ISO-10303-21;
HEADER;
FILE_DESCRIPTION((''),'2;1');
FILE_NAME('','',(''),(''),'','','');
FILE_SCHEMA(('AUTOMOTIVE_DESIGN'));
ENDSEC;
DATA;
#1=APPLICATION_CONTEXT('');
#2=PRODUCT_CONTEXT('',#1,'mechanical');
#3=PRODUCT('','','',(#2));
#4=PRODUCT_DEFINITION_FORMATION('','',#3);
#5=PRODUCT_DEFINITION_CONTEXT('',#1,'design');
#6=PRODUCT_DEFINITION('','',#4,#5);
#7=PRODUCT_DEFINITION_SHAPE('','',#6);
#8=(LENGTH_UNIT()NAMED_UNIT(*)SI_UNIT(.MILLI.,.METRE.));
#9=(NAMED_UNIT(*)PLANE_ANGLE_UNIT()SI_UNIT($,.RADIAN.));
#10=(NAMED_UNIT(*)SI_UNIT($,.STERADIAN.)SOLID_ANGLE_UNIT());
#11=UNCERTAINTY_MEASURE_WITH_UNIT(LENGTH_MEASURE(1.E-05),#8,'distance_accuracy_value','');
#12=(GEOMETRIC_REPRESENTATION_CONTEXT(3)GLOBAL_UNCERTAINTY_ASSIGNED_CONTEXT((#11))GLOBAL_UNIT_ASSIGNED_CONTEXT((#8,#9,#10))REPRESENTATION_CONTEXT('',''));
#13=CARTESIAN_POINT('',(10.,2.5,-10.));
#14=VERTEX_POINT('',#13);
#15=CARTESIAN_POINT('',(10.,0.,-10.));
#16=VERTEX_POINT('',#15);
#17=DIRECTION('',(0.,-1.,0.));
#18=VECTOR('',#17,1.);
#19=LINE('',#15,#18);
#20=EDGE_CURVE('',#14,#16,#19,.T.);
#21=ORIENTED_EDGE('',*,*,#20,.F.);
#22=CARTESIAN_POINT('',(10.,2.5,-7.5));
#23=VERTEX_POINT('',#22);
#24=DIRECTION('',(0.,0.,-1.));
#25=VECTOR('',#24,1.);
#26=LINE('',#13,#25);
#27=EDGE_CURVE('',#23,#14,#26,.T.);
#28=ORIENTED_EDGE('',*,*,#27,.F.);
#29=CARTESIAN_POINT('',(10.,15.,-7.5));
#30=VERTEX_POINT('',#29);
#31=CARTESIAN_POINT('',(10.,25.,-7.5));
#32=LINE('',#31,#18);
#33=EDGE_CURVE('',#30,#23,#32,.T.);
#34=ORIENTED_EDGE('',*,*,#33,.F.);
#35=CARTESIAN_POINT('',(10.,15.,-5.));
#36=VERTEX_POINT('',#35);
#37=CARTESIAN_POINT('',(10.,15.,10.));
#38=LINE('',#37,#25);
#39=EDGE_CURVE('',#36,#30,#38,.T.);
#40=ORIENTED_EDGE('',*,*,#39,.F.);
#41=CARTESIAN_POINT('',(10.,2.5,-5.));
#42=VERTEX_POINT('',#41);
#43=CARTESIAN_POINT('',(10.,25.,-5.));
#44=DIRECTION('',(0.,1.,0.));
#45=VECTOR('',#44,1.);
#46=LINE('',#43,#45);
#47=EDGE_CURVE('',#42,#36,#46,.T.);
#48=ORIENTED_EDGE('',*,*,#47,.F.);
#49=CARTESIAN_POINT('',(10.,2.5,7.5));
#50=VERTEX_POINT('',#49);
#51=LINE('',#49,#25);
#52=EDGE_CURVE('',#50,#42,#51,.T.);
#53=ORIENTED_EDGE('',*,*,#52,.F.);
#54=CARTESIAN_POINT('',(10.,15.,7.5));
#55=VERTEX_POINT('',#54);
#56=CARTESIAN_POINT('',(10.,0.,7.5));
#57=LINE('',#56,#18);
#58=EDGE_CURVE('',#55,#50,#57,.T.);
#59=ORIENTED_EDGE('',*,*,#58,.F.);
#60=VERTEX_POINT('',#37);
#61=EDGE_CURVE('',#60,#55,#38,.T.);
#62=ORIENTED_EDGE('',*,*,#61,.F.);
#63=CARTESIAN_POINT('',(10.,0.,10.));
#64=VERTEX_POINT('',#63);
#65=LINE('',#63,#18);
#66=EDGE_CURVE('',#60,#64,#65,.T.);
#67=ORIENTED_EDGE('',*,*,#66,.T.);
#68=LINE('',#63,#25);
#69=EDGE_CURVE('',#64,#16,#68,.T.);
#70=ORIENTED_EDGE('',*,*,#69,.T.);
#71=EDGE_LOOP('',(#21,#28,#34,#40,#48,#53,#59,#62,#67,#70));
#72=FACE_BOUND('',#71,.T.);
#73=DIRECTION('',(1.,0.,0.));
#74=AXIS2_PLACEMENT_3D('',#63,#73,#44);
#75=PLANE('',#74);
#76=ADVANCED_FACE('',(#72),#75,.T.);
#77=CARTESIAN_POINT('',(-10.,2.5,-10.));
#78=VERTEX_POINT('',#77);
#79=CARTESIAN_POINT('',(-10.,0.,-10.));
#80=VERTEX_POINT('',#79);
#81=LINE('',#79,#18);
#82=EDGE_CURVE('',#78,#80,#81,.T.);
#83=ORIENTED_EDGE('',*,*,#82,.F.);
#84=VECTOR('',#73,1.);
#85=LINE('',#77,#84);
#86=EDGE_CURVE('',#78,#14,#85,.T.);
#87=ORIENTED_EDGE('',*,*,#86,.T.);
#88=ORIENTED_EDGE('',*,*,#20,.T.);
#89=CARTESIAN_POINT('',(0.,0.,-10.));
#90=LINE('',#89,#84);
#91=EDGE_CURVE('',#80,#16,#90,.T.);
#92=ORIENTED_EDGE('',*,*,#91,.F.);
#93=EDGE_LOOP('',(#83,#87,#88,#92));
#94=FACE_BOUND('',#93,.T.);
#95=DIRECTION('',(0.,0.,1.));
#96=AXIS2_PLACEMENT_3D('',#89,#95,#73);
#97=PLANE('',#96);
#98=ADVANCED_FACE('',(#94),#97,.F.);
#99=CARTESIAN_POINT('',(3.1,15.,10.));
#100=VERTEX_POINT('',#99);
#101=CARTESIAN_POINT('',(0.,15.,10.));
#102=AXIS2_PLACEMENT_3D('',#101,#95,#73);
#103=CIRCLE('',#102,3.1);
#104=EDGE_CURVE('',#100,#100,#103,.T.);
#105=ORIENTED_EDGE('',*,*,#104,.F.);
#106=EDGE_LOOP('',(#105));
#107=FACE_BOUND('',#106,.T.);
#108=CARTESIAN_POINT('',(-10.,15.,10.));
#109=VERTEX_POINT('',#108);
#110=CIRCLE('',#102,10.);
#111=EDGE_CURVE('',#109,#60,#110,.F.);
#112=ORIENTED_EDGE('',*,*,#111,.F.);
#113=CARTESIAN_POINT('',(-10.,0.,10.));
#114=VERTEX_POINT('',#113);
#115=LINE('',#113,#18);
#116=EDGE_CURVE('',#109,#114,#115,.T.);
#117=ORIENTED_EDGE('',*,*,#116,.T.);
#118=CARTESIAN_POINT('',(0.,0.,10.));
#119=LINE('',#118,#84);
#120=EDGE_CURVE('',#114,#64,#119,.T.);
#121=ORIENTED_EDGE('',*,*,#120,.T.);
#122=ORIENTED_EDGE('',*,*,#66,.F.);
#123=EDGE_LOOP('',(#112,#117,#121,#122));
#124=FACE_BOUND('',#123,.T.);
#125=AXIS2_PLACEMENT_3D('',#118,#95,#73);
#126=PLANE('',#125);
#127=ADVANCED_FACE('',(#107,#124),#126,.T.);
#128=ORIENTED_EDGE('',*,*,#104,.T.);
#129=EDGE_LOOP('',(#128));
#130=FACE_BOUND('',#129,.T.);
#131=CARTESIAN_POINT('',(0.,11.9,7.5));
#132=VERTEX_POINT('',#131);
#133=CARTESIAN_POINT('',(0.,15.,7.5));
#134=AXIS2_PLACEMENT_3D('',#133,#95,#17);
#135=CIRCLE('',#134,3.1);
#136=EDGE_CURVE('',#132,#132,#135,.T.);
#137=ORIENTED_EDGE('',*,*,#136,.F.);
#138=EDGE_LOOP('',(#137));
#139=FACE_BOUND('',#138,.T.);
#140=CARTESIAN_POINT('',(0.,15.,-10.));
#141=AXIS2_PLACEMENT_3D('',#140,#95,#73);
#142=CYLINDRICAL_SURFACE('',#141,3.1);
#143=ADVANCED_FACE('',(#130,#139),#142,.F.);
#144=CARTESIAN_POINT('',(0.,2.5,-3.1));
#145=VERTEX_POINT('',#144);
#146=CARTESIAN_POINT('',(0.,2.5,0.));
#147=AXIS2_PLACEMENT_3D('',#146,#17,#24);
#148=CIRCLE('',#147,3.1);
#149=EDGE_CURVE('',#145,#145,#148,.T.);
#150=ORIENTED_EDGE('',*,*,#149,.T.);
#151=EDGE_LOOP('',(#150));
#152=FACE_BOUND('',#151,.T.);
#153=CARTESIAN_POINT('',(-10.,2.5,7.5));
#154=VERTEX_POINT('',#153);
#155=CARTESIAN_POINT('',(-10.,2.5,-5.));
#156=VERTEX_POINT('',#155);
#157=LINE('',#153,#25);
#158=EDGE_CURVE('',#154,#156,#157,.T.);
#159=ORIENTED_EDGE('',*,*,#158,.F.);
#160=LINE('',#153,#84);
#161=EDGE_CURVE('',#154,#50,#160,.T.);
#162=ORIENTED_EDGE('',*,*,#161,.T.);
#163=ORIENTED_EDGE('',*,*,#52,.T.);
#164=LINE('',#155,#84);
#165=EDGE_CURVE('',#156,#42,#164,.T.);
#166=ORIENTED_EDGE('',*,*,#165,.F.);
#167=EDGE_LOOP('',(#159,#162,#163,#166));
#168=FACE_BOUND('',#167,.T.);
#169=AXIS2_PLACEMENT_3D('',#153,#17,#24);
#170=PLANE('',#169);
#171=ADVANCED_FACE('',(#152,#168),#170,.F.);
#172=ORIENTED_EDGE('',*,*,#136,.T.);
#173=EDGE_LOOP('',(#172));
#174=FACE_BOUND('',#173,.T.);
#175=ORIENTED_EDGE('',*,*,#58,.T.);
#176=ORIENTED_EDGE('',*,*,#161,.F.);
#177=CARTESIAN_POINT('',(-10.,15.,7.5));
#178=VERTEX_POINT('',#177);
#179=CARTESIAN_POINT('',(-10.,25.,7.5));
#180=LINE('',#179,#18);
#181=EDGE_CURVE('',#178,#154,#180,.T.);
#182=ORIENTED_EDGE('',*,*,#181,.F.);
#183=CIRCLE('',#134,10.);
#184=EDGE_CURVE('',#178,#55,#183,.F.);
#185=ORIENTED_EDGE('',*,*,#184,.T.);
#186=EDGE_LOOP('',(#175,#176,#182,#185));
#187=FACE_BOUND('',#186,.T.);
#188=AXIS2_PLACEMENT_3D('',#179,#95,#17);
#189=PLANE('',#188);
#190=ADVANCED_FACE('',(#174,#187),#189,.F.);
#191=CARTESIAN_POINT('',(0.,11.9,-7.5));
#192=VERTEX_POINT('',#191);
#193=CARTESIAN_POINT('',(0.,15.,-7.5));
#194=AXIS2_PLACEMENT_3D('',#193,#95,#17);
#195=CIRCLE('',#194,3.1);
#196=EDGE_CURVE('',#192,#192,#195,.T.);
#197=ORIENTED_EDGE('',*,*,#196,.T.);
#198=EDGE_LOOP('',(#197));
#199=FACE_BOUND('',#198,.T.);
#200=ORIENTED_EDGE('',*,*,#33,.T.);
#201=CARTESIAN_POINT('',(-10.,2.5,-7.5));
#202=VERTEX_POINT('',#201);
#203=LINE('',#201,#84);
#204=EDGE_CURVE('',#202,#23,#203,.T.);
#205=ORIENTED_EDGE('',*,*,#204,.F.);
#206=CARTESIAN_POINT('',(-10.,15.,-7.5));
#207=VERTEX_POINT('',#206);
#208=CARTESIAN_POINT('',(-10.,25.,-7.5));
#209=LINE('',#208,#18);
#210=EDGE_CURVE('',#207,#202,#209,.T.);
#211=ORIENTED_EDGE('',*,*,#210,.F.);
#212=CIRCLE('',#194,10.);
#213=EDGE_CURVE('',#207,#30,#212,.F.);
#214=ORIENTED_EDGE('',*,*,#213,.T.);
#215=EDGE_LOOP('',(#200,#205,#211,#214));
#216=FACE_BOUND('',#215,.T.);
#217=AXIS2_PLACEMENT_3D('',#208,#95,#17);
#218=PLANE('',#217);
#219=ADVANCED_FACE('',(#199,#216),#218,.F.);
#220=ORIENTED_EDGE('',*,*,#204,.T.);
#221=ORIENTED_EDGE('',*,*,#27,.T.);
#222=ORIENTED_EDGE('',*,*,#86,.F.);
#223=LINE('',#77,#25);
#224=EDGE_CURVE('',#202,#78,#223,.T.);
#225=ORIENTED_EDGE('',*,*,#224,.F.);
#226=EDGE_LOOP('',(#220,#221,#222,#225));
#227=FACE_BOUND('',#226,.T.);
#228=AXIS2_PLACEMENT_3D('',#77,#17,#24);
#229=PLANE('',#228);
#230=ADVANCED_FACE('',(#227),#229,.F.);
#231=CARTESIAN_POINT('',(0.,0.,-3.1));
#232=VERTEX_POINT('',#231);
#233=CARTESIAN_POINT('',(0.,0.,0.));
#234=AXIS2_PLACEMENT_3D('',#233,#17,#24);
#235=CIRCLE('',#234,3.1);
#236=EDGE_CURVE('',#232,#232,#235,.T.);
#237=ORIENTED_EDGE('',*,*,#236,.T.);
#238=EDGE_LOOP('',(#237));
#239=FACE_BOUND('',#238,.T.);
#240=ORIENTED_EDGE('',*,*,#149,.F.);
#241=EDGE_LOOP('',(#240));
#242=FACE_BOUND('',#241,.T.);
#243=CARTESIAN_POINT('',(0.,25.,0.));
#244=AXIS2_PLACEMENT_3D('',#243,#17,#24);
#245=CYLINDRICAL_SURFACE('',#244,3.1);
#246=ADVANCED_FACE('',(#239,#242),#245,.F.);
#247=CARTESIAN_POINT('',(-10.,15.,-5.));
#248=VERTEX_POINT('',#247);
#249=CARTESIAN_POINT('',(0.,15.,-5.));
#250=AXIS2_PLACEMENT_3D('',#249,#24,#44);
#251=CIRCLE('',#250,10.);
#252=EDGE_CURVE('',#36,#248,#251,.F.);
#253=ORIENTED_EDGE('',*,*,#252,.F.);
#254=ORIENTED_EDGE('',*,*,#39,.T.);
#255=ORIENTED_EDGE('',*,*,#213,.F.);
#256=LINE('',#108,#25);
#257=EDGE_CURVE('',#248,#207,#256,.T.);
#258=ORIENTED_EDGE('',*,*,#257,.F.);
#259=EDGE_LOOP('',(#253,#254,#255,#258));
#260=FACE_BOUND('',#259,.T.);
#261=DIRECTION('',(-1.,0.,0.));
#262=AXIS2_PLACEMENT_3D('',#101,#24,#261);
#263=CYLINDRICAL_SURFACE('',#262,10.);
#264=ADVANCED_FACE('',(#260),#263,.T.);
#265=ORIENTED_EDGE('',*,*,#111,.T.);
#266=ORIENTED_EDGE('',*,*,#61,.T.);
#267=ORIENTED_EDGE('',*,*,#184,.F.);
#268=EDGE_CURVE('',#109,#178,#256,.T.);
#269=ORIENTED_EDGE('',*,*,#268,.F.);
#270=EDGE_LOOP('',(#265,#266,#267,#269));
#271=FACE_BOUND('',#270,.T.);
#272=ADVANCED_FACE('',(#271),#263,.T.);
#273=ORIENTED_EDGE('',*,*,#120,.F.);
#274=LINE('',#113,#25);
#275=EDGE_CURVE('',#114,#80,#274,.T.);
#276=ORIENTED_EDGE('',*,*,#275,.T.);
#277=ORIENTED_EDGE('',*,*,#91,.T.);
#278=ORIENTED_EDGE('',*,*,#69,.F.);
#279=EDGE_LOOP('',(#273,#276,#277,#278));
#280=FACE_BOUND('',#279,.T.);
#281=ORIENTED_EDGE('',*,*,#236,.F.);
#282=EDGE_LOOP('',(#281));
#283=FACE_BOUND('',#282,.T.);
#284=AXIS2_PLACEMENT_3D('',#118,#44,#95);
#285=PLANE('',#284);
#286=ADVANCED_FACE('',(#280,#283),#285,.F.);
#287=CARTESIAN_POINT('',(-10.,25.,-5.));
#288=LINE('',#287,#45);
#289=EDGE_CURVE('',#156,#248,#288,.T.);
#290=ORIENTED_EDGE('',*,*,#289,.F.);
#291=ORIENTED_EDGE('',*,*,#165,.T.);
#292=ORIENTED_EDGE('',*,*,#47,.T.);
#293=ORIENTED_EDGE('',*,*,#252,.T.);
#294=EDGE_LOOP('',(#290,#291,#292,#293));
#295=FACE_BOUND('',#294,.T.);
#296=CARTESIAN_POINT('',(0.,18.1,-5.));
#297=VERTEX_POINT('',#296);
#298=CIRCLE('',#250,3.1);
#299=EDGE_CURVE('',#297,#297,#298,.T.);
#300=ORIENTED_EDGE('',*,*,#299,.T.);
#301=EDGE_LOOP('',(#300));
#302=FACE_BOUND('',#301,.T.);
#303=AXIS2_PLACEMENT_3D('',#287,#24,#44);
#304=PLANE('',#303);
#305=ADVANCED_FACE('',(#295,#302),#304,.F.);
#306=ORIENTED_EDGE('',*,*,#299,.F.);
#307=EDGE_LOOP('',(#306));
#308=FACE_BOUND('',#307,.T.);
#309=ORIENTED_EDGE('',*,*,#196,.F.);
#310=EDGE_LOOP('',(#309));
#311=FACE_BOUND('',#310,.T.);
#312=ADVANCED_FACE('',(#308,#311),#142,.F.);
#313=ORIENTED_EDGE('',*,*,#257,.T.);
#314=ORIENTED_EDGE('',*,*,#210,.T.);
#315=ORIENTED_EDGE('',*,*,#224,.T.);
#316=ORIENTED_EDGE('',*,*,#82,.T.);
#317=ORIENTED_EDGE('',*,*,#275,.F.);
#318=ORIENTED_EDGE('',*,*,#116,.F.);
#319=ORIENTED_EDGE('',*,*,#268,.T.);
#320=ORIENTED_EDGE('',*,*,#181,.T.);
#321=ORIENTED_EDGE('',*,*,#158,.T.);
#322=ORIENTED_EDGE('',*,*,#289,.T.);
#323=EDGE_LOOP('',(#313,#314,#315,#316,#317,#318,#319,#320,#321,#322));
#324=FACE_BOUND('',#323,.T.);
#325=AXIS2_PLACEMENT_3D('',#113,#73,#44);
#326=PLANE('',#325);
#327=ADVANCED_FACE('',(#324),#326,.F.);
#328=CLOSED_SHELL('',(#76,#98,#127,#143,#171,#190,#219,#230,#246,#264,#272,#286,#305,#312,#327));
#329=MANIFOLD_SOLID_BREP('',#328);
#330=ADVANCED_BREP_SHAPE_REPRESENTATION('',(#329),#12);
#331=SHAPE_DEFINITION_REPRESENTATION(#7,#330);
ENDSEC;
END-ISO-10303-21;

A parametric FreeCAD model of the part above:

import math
import FreeCAD as App
import Part
import Sketcher
from FreeCAD import Vector
Q = App.Units.Quantity


def add_polygon(sketch, points):
    """Adds a closed chain of lines whose ends are joined by coincident constraints."""
    first, n = sketch.GeometryCount, len(points)
    for a, b in zip(points, points[1:] + points[:1]):
        sketch.addGeometry(Part.LineSegment(App.Vector(*a, 0), App.Vector(*b, 0)), False)
    for i in range(n):
        sketch.addConstraint(Sketcher.Constraint("Coincident", first + i, 2, first + (i + 1) % n, 1))

doc = App.newDocument("Part")
params = doc.addObject("Spreadsheet::Sheet", "Params")
for row, (alias, value) in enumerate([
    ("sketch1_radius", "10 mm"),
    ("sketch1_height", "15 mm"),
    ("pad1_length", "20 mm"),
    ("sketch2_width", "22.5 mm"),
    ("sketch2_height", "12.5 mm"),
    ("sketch2_height2", "2.5 mm"),
    ("sketch3_diameter", "6.2 mm"),
    ("sketch4_diameter", "6.2 mm"),
], start=1):
    params.set(f"A{row}", alias)
    params.set(f"B{row}", "=" + value)
    params.setAlias(f"B{row}", alias)

body = doc.addObject("PartDesign::Body", "Body")

sketch1 = body.newObject("Sketcher::SketchObject", "Sketch")
sketch1.AttachmentSupport = (doc.getObject("XY_Plane"), [""])
sketch1.MapMode = "FlatFace"
sketch1.addGeometry(Part.ArcOfCircle(Part.Circle(Vector(0, 15, 0), Vector(0, 0, 1), 10), math.radians(0), math.radians(180)), False)
sketch1.addGeometry(Part.LineSegment(Vector(-10, 15, 0), Vector(-10, 0, 0)), False)
sketch1.addGeometry(Part.LineSegment(Vector(-10, 0, 0), Vector(10, 0, 0)), False)
sketch1.addGeometry(Part.LineSegment(Vector(10, 0, 0), Vector(10, 15, 0)), False)
sketch1.addConstraint(Sketcher.Constraint("Tangent", 0, 2, 1, 1))
sketch1.addConstraint(Sketcher.Constraint("Coincident", 1, 2, 2, 1))
sketch1.addConstraint(Sketcher.Constraint("Coincident", 2, 2, 3, 1))
sketch1.addConstraint(Sketcher.Constraint("Tangent", 3, 2, 0, 1))
sketch1.addConstraint(Sketcher.Constraint("Vertical", 1))
sketch1.addConstraint(Sketcher.Constraint("Horizontal", 2))
sketch1.addConstraint(Sketcher.Constraint("Vertical", 3))
sketch1.addConstraint(Sketcher.Constraint("Symmetric", 1, 2, 2, 2, -1, 1))
sketch1.addConstraint(Sketcher.Constraint("Radius", 0, Q("10 mm")))
sketch1.addConstraint(Sketcher.Constraint("DistanceY", 1, 2, 1, 1, Q("15 mm")))
sketch1.setExpression("Constraints[8]", "Params.sketch1_radius")
sketch1.setExpression("Constraints[9]", "Params.sketch1_height")
pad1 = body.newObject("PartDesign::Pad", "Pad")
pad1.Profile = sketch1
pad1.setExpression("Length", "Params.pad1_length")
pad1.Midplane = True

sketch2 = body.newObject("Sketcher::SketchObject", "Sketch001")
sketch2.AttachmentSupport = (doc.getObject("YZ_Plane"), [""])
sketch2.MapMode = "FlatFace"
add_polygon(sketch2, [(25, 7.5), (2.5, 7.5), (2.5, -5), (25, -5)])
add_polygon(sketch2, [(25, -7.5), (2.5, -7.5), (2.5, -10), (25, -10)])
sketch2.addConstraint(Sketcher.Constraint("Horizontal", 0))
sketch2.addConstraint(Sketcher.Constraint("Vertical", 1))
sketch2.addConstraint(Sketcher.Constraint("Horizontal", 2))
sketch2.addConstraint(Sketcher.Constraint("Vertical", 3))
sketch2.addConstraint(Sketcher.Constraint("Horizontal", 4))
sketch2.addConstraint(Sketcher.Constraint("Vertical", 5))
sketch2.addConstraint(Sketcher.Constraint("Horizontal", 6))
sketch2.addConstraint(Sketcher.Constraint("Vertical", 7))
sketch2.addConstraint(Sketcher.Constraint("Symmetric", 0, 2, 4, 2, -1))
sketch2.addConstraint(Sketcher.Constraint("Vertical", 3, 2, 6, 2))
sketch2.addConstraint(Sketcher.Constraint("DistanceX", 0, 2, 0, 1, Q("22.5 mm")))
sketch2.addConstraint(Sketcher.Constraint("DistanceY", 1, 2, 1, 1, Q("12.5 mm")))
sketch2.addConstraint(Sketcher.Constraint("DistanceY", 5, 2, 5, 1, Q("2.5 mm")))
sketch2.addConstraint(Sketcher.Constraint("DistanceY", 1, 2, -1, 1, Q("5 mm")))
sketch2.addConstraint(Sketcher.Constraint("DistanceX", -1, 1, 2, 2, Q("25 mm")))
sketch2.setExpression("Constraints[18]", "Params.sketch2_width")
sketch2.setExpression("Constraints[19]", "Params.sketch2_height")
sketch2.setExpression("Constraints[20]", "Params.sketch2_height2")
pocket1 = body.newObject("PartDesign::Pocket", "Pocket")
pocket1.Profile = sketch2
pocket1.Type = "ThroughAll"
pocket1.Midplane = True

sketch3 = body.newObject("Sketcher::SketchObject", "Sketch002")
sketch3.AttachmentSupport = (doc.getObject("XY_Plane"), [""])
sketch3.MapMode = "FlatFace"
sketch3.AttachmentOffset = App.Placement(Vector(0, 0, 10), App.Rotation())
sketch3.addGeometry(Part.Circle(Vector(0, 15, 0), Vector(0, 0, 1), 3.1), False)
sketch3.addConstraint(Sketcher.Constraint("PointOnObject", 0, 3, -2))
sketch3.addConstraint(Sketcher.Constraint("Diameter", 0, Q("6.2 mm")))
sketch3.addConstraint(Sketcher.Constraint("DistanceY", -1, 1, 0, 3, Q("15 mm")))
sketch3.setExpression("Constraints[1]", "Params.sketch3_diameter")
pocket2 = body.newObject("PartDesign::Pocket", "Pocket001")
pocket2.Profile = sketch3
pocket2.Type = "ThroughAll"
pocket2.Midplane = True

sketch4 = body.newObject("Sketcher::SketchObject", "Sketch003")
sketch4.AttachmentSupport = (doc.getObject("XZ_Plane"), [""])
sketch4.MapMode = "FlatFace"
sketch4.addGeometry(Part.Circle(Vector(0, 0, 0), Vector(0, 0, 1), 3.1), False)
sketch4.addConstraint(Sketcher.Constraint("Coincident", 0, 3, -1, 1))
sketch4.addConstraint(Sketcher.Constraint("Diameter", 0, Q("6.2 mm")))
sketch4.setExpression("Constraints[1]", "Params.sketch4_diameter")
pocket3 = body.newObject("PartDesign::Pocket", "Pocket002")
pocket3.Profile = sketch4
pocket3.Type = "ThroughAll"

doc.recompute()
